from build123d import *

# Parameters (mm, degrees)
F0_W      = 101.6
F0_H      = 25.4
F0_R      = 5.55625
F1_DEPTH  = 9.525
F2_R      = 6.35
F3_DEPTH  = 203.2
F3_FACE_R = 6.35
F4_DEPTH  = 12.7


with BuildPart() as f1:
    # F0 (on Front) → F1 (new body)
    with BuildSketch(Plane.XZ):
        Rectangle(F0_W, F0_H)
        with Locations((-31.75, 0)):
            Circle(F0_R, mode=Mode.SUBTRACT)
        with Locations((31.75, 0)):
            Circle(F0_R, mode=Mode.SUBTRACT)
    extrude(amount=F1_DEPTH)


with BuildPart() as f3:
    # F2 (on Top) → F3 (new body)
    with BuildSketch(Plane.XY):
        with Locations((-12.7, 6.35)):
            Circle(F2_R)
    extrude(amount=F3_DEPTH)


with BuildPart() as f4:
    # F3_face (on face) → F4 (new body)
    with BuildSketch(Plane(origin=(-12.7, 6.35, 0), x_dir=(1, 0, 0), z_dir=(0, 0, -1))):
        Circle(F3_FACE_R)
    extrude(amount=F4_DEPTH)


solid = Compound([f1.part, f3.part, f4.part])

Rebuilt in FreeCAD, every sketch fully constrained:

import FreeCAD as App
import Part
import Sketcher

V = App.Vector
Q = App.Units.Quantity


def add_polygon(sketch, points):
    """Adds a closed chain of lines whose ends are joined by coincident constraints."""
    first, n = sketch.GeometryCount, len(points)
    for a, b in zip(points, points[1:] + points[:1]):
        sketch.addGeometry(Part.LineSegment(App.Vector(*a, 0), App.Vector(*b, 0)), False)
    for i in range(n):
        sketch.addConstraint(Sketcher.Constraint("Coincident", first + i, 2, first + (i + 1) % n, 1))

doc = App.newDocument("Part")
body = doc.addObject("PartDesign::Body", "Body")

# Sketch on XZ plane
sketch1 = doc.addObject("Sketcher::SketchObject", "Sketch")
body.addObject(sketch1)
sketch1.AttachmentSupport = (doc.XZ_Plane, [""])
sketch1.MapMode = "FlatFace"
add_polygon(sketch1, [(-51, 13), (-51, -13), (51, -13), (51, 13)])  # lines 0-3
sketch1.addGeometry(Part.Circle(V(-32, 0, 0), V(0, 0, 1), 6), False)  # 4
sketch1.addGeometry(Part.Circle(V(32, 0, 0), V(0, 0, 1), 6), False)  # 5
sketch1.addConstraint([
    Sketcher.Constraint("Vertical", 0),
    Sketcher.Constraint("Horizontal", 1),
    Sketcher.Constraint("Vertical", 2),
    Sketcher.Constraint("Horizontal", 3),
    Sketcher.Constraint("Equal", 4, 5),
    Sketcher.Constraint("Symmetric", 4, 3, 5, 3, -1, 1),
    Sketcher.Constraint("Symmetric", 0, 2, 2, 2, -1, 1),
    Sketcher.Constraint("PointOnObject", 4, 3, -1),
    Sketcher.Constraint("DistanceX", 1, 1, 1, 2, Q("4 in")),
    Sketcher.Constraint("DistanceY", 0, 2, 0, 1, Q("1 in")),
    Sketcher.Constraint("Diameter", 4, Q("0.4375 in")),
    Sketcher.Constraint("DistanceX", 4, 3, 5, 3, Q("2.5 in")),
])
pad1 = doc.addObject("PartDesign::Pad", "Pad")
body.addObject(pad1)
pad1.Profile = sketch1
pad1.Length = Q("0.375 in")
body2 = doc.addObject("PartDesign::Body", "Body001")

# Sketch on XY plane
sketch2 = doc.addObject("Sketcher::SketchObject", "Sketch001")
body2.addObject(sketch2)
sketch2.AttachmentSupport = (doc.getObject("XY_Plane001"), [""])
sketch2.MapMode = "FlatFace"
sketch2.addGeometry(Part.Circle(V(-13, 6, 0), V(0, 0, 1), 6), False)
sketch2.addConstraint([
    Sketcher.Constraint("Diameter", 0, Q("0.5 in")),
    Sketcher.Constraint("DistanceX", 0, 3, -1, 1, Q("0.5 in")),
    Sketcher.Constraint("DistanceY", -1, 1, 0, 3, Q("0.25 in")),
])
pad2 = doc.addObject("PartDesign::Pad", "Pad001")
body2.addObject(pad2)
pad2.Profile = sketch2
pad2.Length = Q("8 in")
body3 = doc.addObject("PartDesign::Body", "Body002")

# Sketch on XY plane
sketch3 = doc.addObject("Sketcher::SketchObject", "Sketch002")
body3.addObject(sketch3)
sketch3.AttachmentSupport = (doc.getObject("XY_Plane002"), [""])
sketch3.MapMode = "FlatFace"
sketch3.addGeometry(Part.Circle(V(-13, 6, 0), V(0, 0, 1), 6), False)
sketch3.addConstraint([
    Sketcher.Constraint("Diameter", 0, Q("0.5 in")),
    Sketcher.Constraint("DistanceX", 0, 3, -1, 1, Q("0.5 in")),
    Sketcher.Constraint("DistanceY", -1, 1, 0, 3, Q("0.25 in")),
])
pad3 = doc.addObject("PartDesign::Pad", "Pad002")
body3.addObject(pad3)
pad3.Profile = sketch3
pad3.Length = Q("0.5 in")
pad3.Reversed = True

doc.recompute()
